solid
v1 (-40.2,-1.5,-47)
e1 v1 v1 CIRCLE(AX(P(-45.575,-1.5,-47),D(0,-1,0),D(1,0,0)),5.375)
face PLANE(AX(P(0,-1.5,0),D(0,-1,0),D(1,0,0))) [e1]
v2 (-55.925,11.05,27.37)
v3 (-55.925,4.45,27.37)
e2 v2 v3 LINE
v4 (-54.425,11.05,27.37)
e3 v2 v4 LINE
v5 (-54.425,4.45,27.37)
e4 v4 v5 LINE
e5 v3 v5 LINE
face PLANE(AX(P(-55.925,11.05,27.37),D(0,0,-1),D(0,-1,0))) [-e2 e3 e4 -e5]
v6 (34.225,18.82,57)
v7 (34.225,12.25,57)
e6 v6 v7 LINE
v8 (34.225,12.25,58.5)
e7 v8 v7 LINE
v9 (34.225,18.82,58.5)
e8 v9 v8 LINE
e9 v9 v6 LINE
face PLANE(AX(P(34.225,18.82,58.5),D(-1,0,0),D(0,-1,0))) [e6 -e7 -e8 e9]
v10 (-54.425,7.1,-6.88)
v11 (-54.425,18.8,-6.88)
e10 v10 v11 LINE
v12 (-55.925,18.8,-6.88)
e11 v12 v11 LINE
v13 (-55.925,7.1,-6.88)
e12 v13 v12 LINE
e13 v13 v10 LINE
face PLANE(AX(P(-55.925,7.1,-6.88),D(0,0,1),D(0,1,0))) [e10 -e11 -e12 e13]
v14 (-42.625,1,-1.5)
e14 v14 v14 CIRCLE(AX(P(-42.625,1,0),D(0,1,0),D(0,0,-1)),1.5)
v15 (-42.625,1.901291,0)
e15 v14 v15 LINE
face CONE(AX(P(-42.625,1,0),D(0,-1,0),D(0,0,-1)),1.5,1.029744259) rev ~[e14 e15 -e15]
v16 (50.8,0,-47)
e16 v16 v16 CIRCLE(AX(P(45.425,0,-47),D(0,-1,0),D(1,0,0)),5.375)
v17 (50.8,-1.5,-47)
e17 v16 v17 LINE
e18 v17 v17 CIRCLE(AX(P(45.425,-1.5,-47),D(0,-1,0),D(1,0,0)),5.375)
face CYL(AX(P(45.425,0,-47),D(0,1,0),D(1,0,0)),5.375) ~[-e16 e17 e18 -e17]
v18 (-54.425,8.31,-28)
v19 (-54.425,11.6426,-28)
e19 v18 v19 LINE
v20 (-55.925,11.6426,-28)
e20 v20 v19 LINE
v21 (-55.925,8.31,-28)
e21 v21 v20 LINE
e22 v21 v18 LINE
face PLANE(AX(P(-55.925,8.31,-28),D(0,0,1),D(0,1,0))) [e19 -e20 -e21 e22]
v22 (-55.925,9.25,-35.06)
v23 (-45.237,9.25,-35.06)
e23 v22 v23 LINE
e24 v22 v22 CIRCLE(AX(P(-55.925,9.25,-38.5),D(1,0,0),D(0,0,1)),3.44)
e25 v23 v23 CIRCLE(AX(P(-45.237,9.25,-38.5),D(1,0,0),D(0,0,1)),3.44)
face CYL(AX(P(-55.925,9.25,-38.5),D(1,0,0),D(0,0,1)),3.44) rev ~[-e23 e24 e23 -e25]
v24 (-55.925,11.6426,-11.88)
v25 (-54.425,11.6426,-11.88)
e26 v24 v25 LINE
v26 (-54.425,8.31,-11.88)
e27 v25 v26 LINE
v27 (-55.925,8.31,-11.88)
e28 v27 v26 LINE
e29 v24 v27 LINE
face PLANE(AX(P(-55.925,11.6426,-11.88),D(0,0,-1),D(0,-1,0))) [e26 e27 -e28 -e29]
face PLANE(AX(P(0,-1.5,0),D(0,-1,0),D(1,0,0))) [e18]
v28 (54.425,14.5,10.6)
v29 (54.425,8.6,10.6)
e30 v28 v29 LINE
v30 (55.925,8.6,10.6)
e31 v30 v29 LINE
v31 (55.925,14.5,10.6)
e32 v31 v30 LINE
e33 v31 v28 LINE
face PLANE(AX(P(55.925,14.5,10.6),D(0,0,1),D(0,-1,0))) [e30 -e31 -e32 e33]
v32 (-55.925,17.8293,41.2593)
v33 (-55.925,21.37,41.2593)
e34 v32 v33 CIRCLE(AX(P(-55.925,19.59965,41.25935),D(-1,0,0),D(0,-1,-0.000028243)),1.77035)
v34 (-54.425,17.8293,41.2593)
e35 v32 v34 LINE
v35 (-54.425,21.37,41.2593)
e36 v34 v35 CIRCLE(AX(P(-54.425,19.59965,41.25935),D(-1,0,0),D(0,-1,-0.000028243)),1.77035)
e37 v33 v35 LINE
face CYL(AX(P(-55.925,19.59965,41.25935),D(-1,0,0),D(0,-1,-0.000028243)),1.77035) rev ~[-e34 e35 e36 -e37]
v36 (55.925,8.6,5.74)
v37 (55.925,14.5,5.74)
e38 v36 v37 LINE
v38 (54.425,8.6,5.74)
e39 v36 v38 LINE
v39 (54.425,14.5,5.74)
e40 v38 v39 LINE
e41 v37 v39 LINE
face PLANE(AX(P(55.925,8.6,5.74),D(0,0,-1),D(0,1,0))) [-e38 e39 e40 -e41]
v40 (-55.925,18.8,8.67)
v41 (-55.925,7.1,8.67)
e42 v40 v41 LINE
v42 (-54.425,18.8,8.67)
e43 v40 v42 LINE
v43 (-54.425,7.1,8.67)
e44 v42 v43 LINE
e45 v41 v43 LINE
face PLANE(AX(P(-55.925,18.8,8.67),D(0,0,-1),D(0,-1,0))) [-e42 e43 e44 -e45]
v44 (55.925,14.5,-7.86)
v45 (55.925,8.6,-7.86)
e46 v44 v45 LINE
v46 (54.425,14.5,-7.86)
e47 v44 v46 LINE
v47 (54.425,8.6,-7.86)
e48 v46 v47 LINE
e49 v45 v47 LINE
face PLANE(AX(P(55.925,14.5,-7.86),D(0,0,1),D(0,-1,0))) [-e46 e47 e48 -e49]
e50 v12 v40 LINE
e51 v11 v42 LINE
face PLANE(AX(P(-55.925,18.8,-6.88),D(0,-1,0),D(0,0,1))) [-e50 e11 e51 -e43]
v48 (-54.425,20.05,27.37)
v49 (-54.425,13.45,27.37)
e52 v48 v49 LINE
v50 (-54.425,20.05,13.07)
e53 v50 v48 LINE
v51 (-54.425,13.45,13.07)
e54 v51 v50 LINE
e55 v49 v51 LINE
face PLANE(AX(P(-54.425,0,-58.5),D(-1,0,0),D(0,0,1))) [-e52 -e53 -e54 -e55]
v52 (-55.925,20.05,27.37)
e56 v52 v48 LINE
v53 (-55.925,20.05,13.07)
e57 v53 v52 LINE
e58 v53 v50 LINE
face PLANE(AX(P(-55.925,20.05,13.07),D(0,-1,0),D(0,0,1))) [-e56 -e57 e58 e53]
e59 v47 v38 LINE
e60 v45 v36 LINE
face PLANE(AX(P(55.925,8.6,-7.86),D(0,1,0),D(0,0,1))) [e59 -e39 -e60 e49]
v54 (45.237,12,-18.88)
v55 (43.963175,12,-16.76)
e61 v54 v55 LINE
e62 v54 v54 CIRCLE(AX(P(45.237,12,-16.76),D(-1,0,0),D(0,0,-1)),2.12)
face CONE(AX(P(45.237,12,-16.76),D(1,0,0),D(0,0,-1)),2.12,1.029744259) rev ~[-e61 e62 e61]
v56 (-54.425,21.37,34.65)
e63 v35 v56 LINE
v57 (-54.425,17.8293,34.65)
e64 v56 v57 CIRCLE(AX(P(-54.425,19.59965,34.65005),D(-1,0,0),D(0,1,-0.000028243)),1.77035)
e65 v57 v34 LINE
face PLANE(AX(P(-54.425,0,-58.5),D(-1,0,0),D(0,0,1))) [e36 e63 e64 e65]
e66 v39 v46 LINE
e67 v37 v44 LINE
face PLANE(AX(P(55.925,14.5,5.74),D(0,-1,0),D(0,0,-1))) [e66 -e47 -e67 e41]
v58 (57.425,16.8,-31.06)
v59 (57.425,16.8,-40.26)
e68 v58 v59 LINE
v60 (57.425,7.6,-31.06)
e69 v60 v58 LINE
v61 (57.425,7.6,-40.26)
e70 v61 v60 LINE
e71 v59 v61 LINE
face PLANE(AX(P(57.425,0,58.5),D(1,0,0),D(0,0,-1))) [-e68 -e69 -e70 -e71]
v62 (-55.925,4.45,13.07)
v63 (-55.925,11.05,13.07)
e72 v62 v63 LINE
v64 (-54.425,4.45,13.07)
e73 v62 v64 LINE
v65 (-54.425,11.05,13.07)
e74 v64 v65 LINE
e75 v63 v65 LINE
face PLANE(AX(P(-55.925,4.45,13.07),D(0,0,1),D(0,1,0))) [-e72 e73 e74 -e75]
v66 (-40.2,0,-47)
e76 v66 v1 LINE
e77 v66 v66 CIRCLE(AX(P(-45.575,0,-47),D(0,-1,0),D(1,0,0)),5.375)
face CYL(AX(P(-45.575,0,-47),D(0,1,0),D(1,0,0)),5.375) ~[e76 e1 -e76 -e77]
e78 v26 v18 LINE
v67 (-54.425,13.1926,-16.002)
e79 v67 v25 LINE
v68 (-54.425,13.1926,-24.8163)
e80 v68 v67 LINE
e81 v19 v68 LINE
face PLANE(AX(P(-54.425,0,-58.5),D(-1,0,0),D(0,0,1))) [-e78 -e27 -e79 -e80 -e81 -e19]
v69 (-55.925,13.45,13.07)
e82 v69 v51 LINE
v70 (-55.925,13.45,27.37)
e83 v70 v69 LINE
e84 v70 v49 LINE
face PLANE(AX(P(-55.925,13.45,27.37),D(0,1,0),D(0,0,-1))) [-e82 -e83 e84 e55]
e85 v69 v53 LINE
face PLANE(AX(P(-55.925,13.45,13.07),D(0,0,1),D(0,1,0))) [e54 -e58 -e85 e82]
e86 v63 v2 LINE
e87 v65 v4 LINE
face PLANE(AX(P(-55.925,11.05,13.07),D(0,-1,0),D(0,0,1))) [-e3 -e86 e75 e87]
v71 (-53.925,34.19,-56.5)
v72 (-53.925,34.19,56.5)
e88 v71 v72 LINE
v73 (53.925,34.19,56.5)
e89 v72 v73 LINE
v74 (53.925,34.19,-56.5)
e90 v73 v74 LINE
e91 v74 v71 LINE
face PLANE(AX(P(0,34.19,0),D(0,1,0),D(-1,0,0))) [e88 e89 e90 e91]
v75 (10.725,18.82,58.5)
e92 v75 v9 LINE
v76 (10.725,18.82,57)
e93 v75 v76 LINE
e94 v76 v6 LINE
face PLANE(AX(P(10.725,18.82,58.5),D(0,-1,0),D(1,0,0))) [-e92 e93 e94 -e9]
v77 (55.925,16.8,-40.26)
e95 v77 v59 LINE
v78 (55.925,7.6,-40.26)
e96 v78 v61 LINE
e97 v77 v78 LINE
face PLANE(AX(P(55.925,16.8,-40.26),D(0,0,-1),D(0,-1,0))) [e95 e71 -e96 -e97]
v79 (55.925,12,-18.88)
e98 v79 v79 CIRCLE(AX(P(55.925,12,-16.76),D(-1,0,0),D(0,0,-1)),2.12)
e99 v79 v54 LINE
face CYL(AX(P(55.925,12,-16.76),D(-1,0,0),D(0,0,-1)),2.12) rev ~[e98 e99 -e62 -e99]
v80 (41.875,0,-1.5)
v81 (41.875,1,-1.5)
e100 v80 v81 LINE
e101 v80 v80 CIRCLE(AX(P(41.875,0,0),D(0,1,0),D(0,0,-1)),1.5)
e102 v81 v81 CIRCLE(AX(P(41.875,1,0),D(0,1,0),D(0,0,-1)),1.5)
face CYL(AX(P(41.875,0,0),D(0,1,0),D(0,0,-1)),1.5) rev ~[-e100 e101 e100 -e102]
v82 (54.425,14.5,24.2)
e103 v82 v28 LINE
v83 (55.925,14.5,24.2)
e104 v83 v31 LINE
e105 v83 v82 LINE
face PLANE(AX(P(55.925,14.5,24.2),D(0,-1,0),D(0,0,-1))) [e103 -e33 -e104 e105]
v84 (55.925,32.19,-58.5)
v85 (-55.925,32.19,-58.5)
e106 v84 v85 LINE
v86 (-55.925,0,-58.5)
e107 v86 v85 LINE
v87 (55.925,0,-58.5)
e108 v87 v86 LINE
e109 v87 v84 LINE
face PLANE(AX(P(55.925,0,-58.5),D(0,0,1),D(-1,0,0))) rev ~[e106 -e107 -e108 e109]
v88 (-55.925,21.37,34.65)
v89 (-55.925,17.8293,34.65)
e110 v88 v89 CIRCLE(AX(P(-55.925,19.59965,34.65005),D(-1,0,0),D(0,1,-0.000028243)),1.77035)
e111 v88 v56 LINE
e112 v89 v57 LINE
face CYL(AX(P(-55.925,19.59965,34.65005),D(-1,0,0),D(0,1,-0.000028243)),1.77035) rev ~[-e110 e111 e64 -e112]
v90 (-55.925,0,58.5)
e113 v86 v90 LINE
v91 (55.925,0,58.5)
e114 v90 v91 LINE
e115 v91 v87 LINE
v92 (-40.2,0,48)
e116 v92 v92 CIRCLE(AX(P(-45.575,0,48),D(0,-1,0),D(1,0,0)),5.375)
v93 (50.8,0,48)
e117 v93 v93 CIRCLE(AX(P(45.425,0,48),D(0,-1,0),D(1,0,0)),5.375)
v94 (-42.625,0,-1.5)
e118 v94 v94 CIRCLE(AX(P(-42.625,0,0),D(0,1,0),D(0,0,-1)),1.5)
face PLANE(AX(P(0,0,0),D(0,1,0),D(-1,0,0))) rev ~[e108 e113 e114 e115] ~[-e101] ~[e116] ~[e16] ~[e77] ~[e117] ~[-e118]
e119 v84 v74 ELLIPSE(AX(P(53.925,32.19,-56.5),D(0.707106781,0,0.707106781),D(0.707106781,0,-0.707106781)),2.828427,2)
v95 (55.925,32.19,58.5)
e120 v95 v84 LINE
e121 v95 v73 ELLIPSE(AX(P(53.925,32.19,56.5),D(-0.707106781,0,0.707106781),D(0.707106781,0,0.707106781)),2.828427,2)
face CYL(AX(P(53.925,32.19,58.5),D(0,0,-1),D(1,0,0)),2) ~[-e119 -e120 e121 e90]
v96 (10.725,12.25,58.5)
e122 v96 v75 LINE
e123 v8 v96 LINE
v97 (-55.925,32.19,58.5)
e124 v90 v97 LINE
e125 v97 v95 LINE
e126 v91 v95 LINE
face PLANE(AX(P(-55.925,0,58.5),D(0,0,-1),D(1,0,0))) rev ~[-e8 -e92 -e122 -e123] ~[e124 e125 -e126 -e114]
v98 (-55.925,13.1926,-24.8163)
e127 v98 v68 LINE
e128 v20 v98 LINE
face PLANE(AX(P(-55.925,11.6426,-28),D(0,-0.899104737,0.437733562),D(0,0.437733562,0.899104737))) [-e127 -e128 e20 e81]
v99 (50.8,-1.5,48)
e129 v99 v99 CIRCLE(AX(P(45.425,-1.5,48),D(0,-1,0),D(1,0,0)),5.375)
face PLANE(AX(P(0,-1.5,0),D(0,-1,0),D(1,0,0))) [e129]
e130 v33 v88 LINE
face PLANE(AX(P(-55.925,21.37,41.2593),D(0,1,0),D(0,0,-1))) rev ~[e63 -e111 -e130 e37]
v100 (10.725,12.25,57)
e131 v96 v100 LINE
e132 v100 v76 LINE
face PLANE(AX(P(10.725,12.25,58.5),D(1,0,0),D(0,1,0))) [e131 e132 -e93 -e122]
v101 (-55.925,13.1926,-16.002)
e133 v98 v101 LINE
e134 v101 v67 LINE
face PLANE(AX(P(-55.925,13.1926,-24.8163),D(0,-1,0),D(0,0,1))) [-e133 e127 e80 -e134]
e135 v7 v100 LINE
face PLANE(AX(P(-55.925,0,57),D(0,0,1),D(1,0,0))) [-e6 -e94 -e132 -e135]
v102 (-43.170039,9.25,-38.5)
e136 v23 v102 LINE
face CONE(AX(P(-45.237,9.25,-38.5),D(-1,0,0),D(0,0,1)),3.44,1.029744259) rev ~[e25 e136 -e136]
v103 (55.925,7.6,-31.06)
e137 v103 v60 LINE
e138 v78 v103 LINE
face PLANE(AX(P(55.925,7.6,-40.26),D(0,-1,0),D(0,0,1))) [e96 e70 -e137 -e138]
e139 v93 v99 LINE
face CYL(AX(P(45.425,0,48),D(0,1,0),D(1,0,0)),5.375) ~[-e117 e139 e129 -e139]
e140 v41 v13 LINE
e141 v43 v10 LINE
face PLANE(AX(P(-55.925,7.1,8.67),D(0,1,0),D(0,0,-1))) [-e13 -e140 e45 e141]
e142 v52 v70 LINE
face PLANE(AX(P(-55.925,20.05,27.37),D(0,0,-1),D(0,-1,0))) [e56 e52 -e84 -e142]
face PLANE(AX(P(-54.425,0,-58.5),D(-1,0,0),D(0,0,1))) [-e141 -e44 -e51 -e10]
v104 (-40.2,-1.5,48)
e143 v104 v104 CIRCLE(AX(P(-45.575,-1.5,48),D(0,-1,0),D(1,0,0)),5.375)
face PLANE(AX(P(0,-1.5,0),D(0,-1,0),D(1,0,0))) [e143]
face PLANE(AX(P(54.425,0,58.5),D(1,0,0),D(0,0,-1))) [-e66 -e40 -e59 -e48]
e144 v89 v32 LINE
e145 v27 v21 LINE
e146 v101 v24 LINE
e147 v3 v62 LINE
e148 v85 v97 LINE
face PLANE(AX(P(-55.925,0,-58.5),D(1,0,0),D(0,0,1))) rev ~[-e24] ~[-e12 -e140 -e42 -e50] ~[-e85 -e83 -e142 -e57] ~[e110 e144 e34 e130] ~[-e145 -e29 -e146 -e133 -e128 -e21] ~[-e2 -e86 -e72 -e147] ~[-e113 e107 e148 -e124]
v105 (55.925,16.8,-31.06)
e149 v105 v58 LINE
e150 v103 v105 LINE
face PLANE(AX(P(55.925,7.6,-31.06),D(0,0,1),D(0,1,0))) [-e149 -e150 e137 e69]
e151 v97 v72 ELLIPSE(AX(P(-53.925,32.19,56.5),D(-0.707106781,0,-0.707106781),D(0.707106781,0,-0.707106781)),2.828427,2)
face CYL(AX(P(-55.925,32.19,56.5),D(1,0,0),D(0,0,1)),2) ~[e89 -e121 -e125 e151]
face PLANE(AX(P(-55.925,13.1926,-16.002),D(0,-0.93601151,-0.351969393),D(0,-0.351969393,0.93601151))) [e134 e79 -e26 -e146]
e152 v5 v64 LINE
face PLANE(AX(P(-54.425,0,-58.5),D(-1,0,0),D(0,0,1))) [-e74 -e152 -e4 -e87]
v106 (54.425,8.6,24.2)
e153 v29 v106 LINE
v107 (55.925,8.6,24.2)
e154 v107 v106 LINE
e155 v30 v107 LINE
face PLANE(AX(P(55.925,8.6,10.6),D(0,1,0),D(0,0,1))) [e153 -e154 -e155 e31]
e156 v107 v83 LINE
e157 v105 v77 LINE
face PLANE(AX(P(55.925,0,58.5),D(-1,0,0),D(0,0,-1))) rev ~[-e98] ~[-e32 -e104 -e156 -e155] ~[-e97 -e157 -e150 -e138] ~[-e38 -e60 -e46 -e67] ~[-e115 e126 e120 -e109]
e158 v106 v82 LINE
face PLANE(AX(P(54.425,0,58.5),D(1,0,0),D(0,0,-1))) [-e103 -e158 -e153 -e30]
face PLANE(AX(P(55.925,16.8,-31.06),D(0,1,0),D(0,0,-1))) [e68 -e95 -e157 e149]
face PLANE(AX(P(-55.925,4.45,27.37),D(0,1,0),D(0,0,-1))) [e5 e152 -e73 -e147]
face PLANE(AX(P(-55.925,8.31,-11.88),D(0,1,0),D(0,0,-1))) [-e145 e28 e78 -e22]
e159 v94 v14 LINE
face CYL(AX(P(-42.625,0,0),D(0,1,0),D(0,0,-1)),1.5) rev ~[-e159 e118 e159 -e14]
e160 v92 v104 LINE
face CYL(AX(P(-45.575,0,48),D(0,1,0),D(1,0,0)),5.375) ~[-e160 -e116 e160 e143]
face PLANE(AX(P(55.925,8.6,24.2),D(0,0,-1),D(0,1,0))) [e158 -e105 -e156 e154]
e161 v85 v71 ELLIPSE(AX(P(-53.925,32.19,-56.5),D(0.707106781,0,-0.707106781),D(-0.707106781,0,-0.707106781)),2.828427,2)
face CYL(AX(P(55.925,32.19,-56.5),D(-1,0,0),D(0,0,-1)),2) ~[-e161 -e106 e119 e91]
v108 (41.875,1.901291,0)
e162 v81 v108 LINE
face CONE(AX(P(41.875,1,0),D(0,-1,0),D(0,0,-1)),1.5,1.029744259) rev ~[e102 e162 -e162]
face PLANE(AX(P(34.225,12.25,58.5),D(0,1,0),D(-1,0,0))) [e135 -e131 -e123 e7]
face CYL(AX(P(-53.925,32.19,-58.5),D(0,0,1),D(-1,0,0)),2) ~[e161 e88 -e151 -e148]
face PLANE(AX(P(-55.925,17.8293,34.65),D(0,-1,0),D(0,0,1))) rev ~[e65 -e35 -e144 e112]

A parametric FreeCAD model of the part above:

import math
import FreeCAD as App
import Part
import Sketcher

V = App.Vector
Q = App.Units.Quantity


def edges_at(feature, points):
    """Names of the edges that pass closest to the given points."""
    edges = feature.Shape.Edges
    near = lambda p: min(range(len(edges)), key=lambda i: edges[i].distToShape(Part.Vertex(*p))[0])
    return sorted({f"Edge{near(p) + 1}" for p in points})

doc = App.newDocument("Part")
body = doc.addObject("PartDesign::Body", "Body")

# Sketch on XZ plane
sketch1 = body.newObject("Sketcher::SketchObject", "Sketch")
sketch1.AttachmentSupport = (doc.getObject("XZ_Plane"), [""])
sketch1.MapMode = "FlatFace"
sketch1.addGeometry(Part.LineSegment(V(-56, -58, 0), V(-56, 58, 0)), False)
sketch1.addGeometry(Part.LineSegment(V(-56, 58, 0), V(56, 58, 0)), False)
sketch1.addGeometry(Part.LineSegment(V(56, 58, 0), V(56, -58, 0)), False)
sketch1.addGeometry(Part.LineSegment(V(56, -58, 0), V(-56, -58, 0)), False)
sketch1.addConstraint(Sketcher.Constraint("Coincident", 0, 2, 1, 1))
sketch1.addConstraint(Sketcher.Constraint("Coincident", 1, 2, 2, 1))
sketch1.addConstraint(Sketcher.Constraint("Coincident", 2, 2, 3, 1))
sketch1.addConstraint(Sketcher.Constraint("Coincident", 3, 2, 0, 1))
sketch1.addConstraint(Sketcher.Constraint("Vertical", 0))
sketch1.addConstraint(Sketcher.Constraint("Horizontal", 1))
sketch1.addConstraint(Sketcher.Constraint("Vertical", 2))
sketch1.addConstraint(Sketcher.Constraint("Horizontal", 3))
sketch1.addConstraint(Sketcher.Constraint("Symmetric", 0, 2, 2, 2, -1, 1))
sketch1.addConstraint(Sketcher.Constraint("DistanceY", 0, 1, 0, 2, 117.0))
sketch1.addConstraint(Sketcher.Constraint("DistanceX", 1, 1, 1, 2, 111.85))
pad1 = body.newObject("PartDesign::Pad", "Pad")
pad1.Profile = sketch1
pad1.Length = 34.19
pad1.Reversed = True
doc.recompute()

fillet = body.newObject("PartDesign::Fillet", "Fillet")
fillet.Base = (pad1, edges_at(pad1, [
    (0, 34.19, 58.5),
    (55.925, 34.19, 0),
    (0, 34.19, -58.5),
    (-55.925, 34.19, 0),
]))
fillet.Radius = 2

# Sketch on XZ plane
sketch2 = body.newObject("Sketcher::SketchObject", "Sketch001")
sketch2.AttachmentSupport = (doc.getObject("XZ_Plane"), [""])
sketch2.MapMode = "FlatFace"
sketch2.addGeometry(Part.Circle(V(45, 48, 0), V(0, 0, 1), 5), False)
sketch2.addGeometry(Part.Circle(V(-46, 48, 0), V(0, 0, 1), 5), False)
sketch2.addGeometry(Part.Circle(V(45, -47, 0), V(0, 0, 1), 5), False)
sketch2.addGeometry(Part.Circle(V(-46, -47, 0), V(0, 0, 1), 5), False)
sketch2.addConstraint(Sketcher.Constraint("Equal", 0, 1))
sketch2.addConstraint(Sketcher.Constraint("Equal", 1, 2))
sketch2.addConstraint(Sketcher.Constraint("Equal", 2, 3))
sketch2.addConstraint(Sketcher.Constraint("Horizontal", 0, 3, 1, 3))
sketch2.addConstraint(Sketcher.Constraint("Horizontal", 2, 3, 3, 3))
sketch2.addConstraint(Sketcher.Constraint("Vertical", 0, 3, 2, 3))
sketch2.addConstraint(Sketcher.Constraint("Vertical", 1, 3, 3, 3))
sketch2.addConstraint(Sketcher.Constraint("Diameter", 0, 10.75))
sketch2.addConstraint(Sketcher.Constraint("DistanceX", 1, 3, 0, 3, 91.0))
sketch2.addConstraint(Sketcher.Constraint("DistanceY", 2, 3, 0, 3, 95.0))
sketch2.addConstraint(Sketcher.Constraint("DistanceY", -1, 1, 0, 3, 48.0))
sketch2.addConstraint(Sketcher.Constraint("DistanceX", -1, 1, 0, 3, 45.425))
pad2 = body.newObject("PartDesign::Pad", "Pad001")
pad2.Profile = sketch2
pad2.Length = 1.5

# Sketch on XZ plane
sketch3 = body.newObject("Sketcher::SketchObject", "Sketch002")
sketch3.AttachmentSupport = (doc.getObject("XZ_Plane"), [""])
sketch3.MapMode = "FlatFace"
sketch3.addGeometry(Part.Circle(V(-42.6, 0, 0), V(0, 0, 1), 1.5), False)
sketch3.addConstraint(Sketcher.Constraint("PointOnObject", 0, 3, -1))
sketch3.addConstraint(Sketcher.Constraint("Diameter", 0, 3.0))
sketch3.addConstraint(Sketcher.Constraint("DistanceX", 0, 3, -1, 1, 42.625))
doc.recompute()
hole = body.newObject("PartDesign::Hole", "Hole")
hole.Profile = sketch3
hole.ThreadType = "None"
hole.Diameter = 3
hole.DepthType = "Dimension"
hole.Depth = 1
hole.DrillPoint = "Angled"
hole.DrillPointAngle = 118
doc.recompute()

linearpattern = body.newObject("PartDesign::LinearPattern", "LinearPattern")
linearpattern.Originals = [hole]
linearpattern.Direction = (doc.getObject("X_Axis"), [""])
linearpattern.Mode = "offset"
linearpattern.Offset = 84.5
linearpattern.Occurrences = 2
body.Tip = linearpattern

# Sketch on YZ plane
sketch4 = body.newObject("Sketcher::SketchObject", "Sketch003")
sketch4.AttachmentSupport = (doc.getObject("YZ_Plane"), [""])
sketch4.MapMode = "FlatFace"
sketch4.AttachmentOffset = App.Placement(V(0, 0, 55.925), App.Rotation())
sketch4.addGeometry(Part.LineSegment(V(14, 11, 0), V(14, 24, 0)), False)
sketch4.addGeometry(Part.LineSegment(V(14, 24, 0), V(9, 24, 0)), False)
sketch4.addGeometry(Part.LineSegment(V(9, 24, 0), V(9, 11, 0)), False)
sketch4.addGeometry(Part.LineSegment(V(9, 11, 0), V(14, 11, 0)), False)
sketch4.addGeometry(Part.LineSegment(V(14, -8, 0), V(14, 6, 0)), False)
sketch4.addGeometry(Part.LineSegment(V(14, 6, 0), V(9, 6, 0)), False)
sketch4.addGeometry(Part.LineSegment(V(9, 6, 0), V(9, -8, 0)), False)
sketch4.addGeometry(Part.LineSegment(V(9, -8, 0), V(14, -8, 0)), False)
sketch4.addConstraint(Sketcher.Constraint("Coincident", 0, 2, 1, 1))
sketch4.addConstraint(Sketcher.Constraint("Coincident", 1, 2, 2, 1))
sketch4.addConstraint(Sketcher.Constraint("Coincident", 2, 2, 3, 1))
sketch4.addConstraint(Sketcher.Constraint("Coincident", 3, 2, 0, 1))
sketch4.addConstraint(Sketcher.Constraint("Coincident", 4, 2, 5, 1))
sketch4.addConstraint(Sketcher.Constraint("Coincident", 5, 2, 6, 1))
sketch4.addConstraint(Sketcher.Constraint("Coincident", 6, 2, 7, 1))
sketch4.addConstraint(Sketcher.Constraint("Coincident", 7, 2, 4, 1))
sketch4.addConstraint(Sketcher.Constraint("Vertical", 0))
sketch4.addConstraint(Sketcher.Constraint("Horizontal", 1))
sketch4.addConstraint(Sketcher.Constraint("Vertical", 2))
sketch4.addConstraint(Sketcher.Constraint("Horizontal", 3))
sketch4.addConstraint(Sketcher.Constraint("Vertical", 4))
sketch4.addConstraint(Sketcher.Constraint("Horizontal", 5))
sketch4.addConstraint(Sketcher.Constraint("Vertical", 6))
sketch4.addConstraint(Sketcher.Constraint("Horizontal", 7))
sketch4.addConstraint(Sketcher.Constraint("Vertical", 3, 2, 4, 2))
sketch4.addConstraint(Sketcher.Constraint("Vertical", 2, 2, 5, 2))
sketch4.addConstraint(Sketcher.Constraint("Equal", 2, 4))
sketch4.addConstraint(Sketcher.Constraint("DistanceX", 1, 2, 1, 1, 5.9))
sketch4.addConstraint(Sketcher.Constraint("DistanceY", 0, 1, 0, 2, 13.6))
sketch4.addConstraint(Sketcher.Constraint("DistanceX", -1, 1, 1, 2, 8.6))
sketch4.addConstraint(Sketcher.Constraint("DistanceY", 4, 2, 3, 2, 4.86))
sketch4.addConstraint(Sketcher.Constraint("DistanceY", -1, 1, 0, 2, 24.2))
pocket1 = body.newObject("PartDesign::Pocket", "Pocket")
pocket1.Profile = sketch4
pocket1.Length = 1.5

# Sketch on YZ plane
sketch5 = body.newObject("Sketcher::SketchObject", "Sketch004")
sketch5.AttachmentSupport = (doc.getObject("YZ_Plane"), [""])
sketch5.MapMode = "FlatFace"
sketch5.AttachmentOffset = App.Placement(V(0, 0, 55.925), App.Rotation())
sketch5.addGeometry(Part.Circle(V(12, -16.8, 0), V(0, 0, 1), 2.1), False)
sketch5.addConstraint(Sketcher.Constraint("Diameter", 0, 4.24))
sketch5.addConstraint(Sketcher.Constraint("DistanceX", -1, 1, 0, 3, 12.0))
sketch5.addConstraint(Sketcher.Constraint("DistanceY", 0, 3, -1, 1, 16.76))
doc.recompute()
hole2 = body.newObject("PartDesign::Hole", "Hole001")
hole2.Profile = sketch5
hole2.ThreadType = "None"
hole2.Diameter = 4.24
hole2.DepthType = "Dimension"
hole2.Depth = 10.688
hole2.DrillPoint = "Angled"
hole2.DrillPointAngle = 118

# Sketch on YZ plane
sketch6 = body.newObject("Sketcher::SketchObject", "Sketch005")
sketch6.AttachmentSupport = (doc.getObject("YZ_Plane"), [""])
sketch6.MapMode = "FlatFace"
sketch6.AttachmentOffset = App.Placement(V(0, 0, -55.925), App.Rotation())
sketch6.addGeometry(Part.Circle(V(9.2, -38.5, 0), V(0, 0, 1), 3.4), False)
sketch6.addConstraint(Sketcher.Constraint("Diameter", 0, 6.88))
sketch6.addConstraint(Sketcher.Constraint("DistanceY", 0, 3, -1, 1, 38.5))
sketch6.addConstraint(Sketcher.Constraint("DistanceX", -1, 1, 0, 3, 9.25))
doc.recompute()
hole3 = body.newObject("PartDesign::Hole", "Hole002")
hole3.Profile = sketch6
hole3.ThreadType = "None"
hole3.Diameter = 6.88
hole3.DepthType = "Dimension"
hole3.Depth = 10.688
hole3.DrillPoint = "Angled"
hole3.DrillPointAngle = 118
hole3.Reversed = True

# Sketch on YZ plane
sketch7 = body.newObject("Sketcher::SketchObject", "Sketch006")
sketch7.AttachmentSupport = (doc.getObject("YZ_Plane"), [""])
sketch7.MapMode = "FlatFace"
sketch7.AttachmentOffset = App.Placement(V(0, 0, -55.925), App.Rotation())
sketch7.addGeometry(Part.LineSegment(V(13.2, -16, 0), V(13.2, -24.8, 0)), False)
sketch7.addGeometry(Part.LineSegment(V(13.2, -24.8, 0), V(11.6, -28, 0)), False)
sketch7.addGeometry(Part.LineSegment(V(11.6, -28, 0), V(8.3, -28, 0)), False)
sketch7.addGeometry(Part.LineSegment(V(8.3, -28, 0), V(8.3, -11.9, 0)), False)
sketch7.addGeometry(Part.LineSegment(V(8.3, -11.9, 0), V(11.6, -11.9, 0)), False)
sketch7.addGeometry(Part.LineSegment(V(11.6, -11.9, 0), V(13.2, -16, 0)), False)
sketch7.addConstraint(Sketcher.Constraint("Coincident", 0, 2, 1, 1))
sketch7.addConstraint(Sketcher.Constraint("Coincident", 1, 2, 2, 1))
sketch7.addConstraint(Sketcher.Constraint("Coincident", 2, 2, 3, 1))
sketch7.addConstraint(Sketcher.Constraint("Coincident", 3, 2, 4, 1))
sketch7.addConstraint(Sketcher.Constraint("Coincident", 4, 2, 5, 1))
sketch7.addConstraint(Sketcher.Constraint("Coincident", 5, 2, 0, 1))
sketch7.addConstraint(Sketcher.Constraint("Vertical", 0))
sketch7.addConstraint(Sketcher.Constraint("Horizontal", 2))
sketch7.addConstraint(Sketcher.Constraint("Vertical", 3))
sketch7.addConstraint(Sketcher.Constraint("Horizontal", 4))
sketch7.addConstraint(Sketcher.Constraint("Vertical", 1, 2, 4, 2))
sketch7.addConstraint(Sketcher.Constraint("DistanceY", 3, 1, 3, 2, 16.12))
sketch7.addConstraint(Sketcher.Constraint("DistanceX", -1, 1, 2, 2, 8.31))
sketch7.addConstraint(Sketcher.Constraint("DistanceX", 1, 2, 0, 2, 1.55))
sketch7.addConstraint(Sketcher.Constraint("DistanceY", 0, 2, 0, 1, 8.8143))
sketch7.addConstraint(Sketcher.Constraint("DistanceY", 1, 2, -1, 1, 28.0))
sketch7.addConstraint(Sketcher.Constraint("Angle", 1, Q("-115.9594 deg")))
sketch7.addConstraint(Sketcher.Constraint("DistanceX", 2, 2, 2, 1, 3.3326))
pocket2 = body.newObject("PartDesign::Pocket", "Pocket001")
pocket2.Profile = sketch7
pocket2.Length = 1.5
pocket2.Reversed = True

# Sketch on YZ plane
sketch8 = body.newObject("Sketcher::SketchObject", "Sketch007")
sketch8.AttachmentSupport = (doc.getObject("YZ_Plane"), [""])
sketch8.MapMode = "FlatFace"
sketch8.AttachmentOffset = App.Placement(V(0, 0, -55.925), App.Rotation())
sketch8.addGeometry(Part.LineSegment(V(19, 9, 0), V(19, -7, 0)), False)
sketch8.addGeometry(Part.LineSegment(V(19, -7, 0), V(7, -7, 0)), False)
sketch8.addGeometry(Part.LineSegment(V(7, -7, 0), V(7, 9, 0)), False)
sketch8.addGeometry(Part.LineSegment(V(7, 9, 0), V(19, 9, 0)), False)
sketch8.addConstraint(Sketcher.Constraint("Coincident", 0, 2, 1, 1))
sketch8.addConstraint(Sketcher.Constraint("Coincident", 1, 2, 2, 1))
sketch8.addConstraint(Sketcher.Constraint("Coincident", 2, 2, 3, 1))
sketch8.addConstraint(Sketcher.Constraint("Coincident", 3, 2, 0, 1))
sketch8.addConstraint(Sketcher.Constraint("Vertical", 0))
sketch8.addConstraint(Sketcher.Constraint("Horizontal", 1))
sketch8.addConstraint(Sketcher.Constraint("Vertical", 2))
sketch8.addConstraint(Sketcher.Constraint("Horizontal", 3))
sketch8.addConstraint(Sketcher.Constraint("DistanceX", 1, 2, 1, 1, 11.7))
sketch8.addConstraint(Sketcher.Constraint("DistanceY", 0, 2, 0, 1, 15.55))
sketch8.addConstraint(Sketcher.Constraint("DistanceX", -1, 1, 1, 2, 7.1))
sketch8.addConstraint(Sketcher.Constraint("DistanceY", 0, 2, -1, 1, 6.88))
pocket3 = body.newObject("PartDesign::Pocket", "Pocket002")
pocket3.Profile = sketch8
pocket3.Length = 1.5
pocket3.Reversed = True

# Sketch on YZ plane
sketch9 = body.newObject("Sketcher::SketchObject", "Sketch008")
sketch9.AttachmentSupport = (doc.getObject("YZ_Plane"), [""])
sketch9.MapMode = "FlatFace"
sketch9.AttachmentOffset = App.Placement(V(0, 0, -55.925), App.Rotation())
sketch9.addGeometry(Part.LineSegment(V(20, 27, 0), V(20, 13, 0)), False)
sketch9.addGeometry(Part.LineSegment(V(20, 13, 0), V(13, 13, 0)), False)
sketch9.addGeometry(Part.LineSegment(V(13, 13, 0), V(13, 27, 0)), False)
sketch9.addGeometry(Part.LineSegment(V(13, 27, 0), V(20, 27, 0)), False)
sketch9.addGeometry(Part.LineSegment(V(11, 27, 0), V(11, 13, 0)), False)
sketch9.addGeometry(Part.LineSegment(V(11, 13, 0), V(4, 13, 0)), False)
sketch9.addGeometry(Part.LineSegment(V(4, 13, 0), V(4, 27, 0)), False)
sketch9.addGeometry(Part.LineSegment(V(4, 27, 0), V(11, 27, 0)), False)
sketch9.addConstraint(Sketcher.Constraint("Coincident", 0, 2, 1, 1))
sketch9.addConstraint(Sketcher.Constraint("Coincident", 1, 2, 2, 1))
sketch9.addConstraint(Sketcher.Constraint("Coincident", 2, 2, 3, 1))
sketch9.addConstraint(Sketcher.Constraint("Coincident", 3, 2, 0, 1))
sketch9.addConstraint(Sketcher.Constraint("Coincident", 4, 2, 5, 1))
sketch9.addConstraint(Sketcher.Constraint("Coincident", 5, 2, 6, 1))
sketch9.addConstraint(Sketcher.Constraint("Coincident", 6, 2, 7, 1))
sketch9.addConstraint(Sketcher.Constraint("Coincident", 7, 2, 4, 1))
sketch9.addConstraint(Sketcher.Constraint("Vertical", 0))
sketch9.addConstraint(Sketcher.Constraint("Horizontal", 1))
sketch9.addConstraint(Sketcher.Constraint("Vertical", 2))
sketch9.addConstraint(Sketcher.Constraint("Horizontal", 3))
sketch9.addConstraint(Sketcher.Constraint("Vertical", 4))
sketch9.addConstraint(Sketcher.Constraint("Horizontal", 5))
sketch9.addConstraint(Sketcher.Constraint("Vertical", 6))
sketch9.addConstraint(Sketcher.Constraint("Horizontal", 7))
sketch9.addConstraint(Sketcher.Constraint("Horizontal", 1, 2, 4, 2))
sketch9.addConstraint(Sketcher.Constraint("Horizontal", 3, 2, 6, 2))
sketch9.addConstraint(Sketcher.Constraint("Equal", 3, 5))
sketch9.addConstraint(Sketcher.Constraint("DistanceX", 1, 2, 1, 1, 6.6))
sketch9.addConstraint(Sketcher.Constraint("DistanceY", 0, 2, 0, 1, 14.3))
sketch9.addConstraint(Sketcher.Constraint("DistanceX", 4, 2, 1, 2, 2.4))
sketch9.addConstraint(Sketcher.Constraint("DistanceX", -1, 1, 0, 2, 20.05))
sketch9.addConstraint(Sketcher.Constraint("DistanceY", -1, 1, 0, 2, 13.07))
pocket4 = body.newObject("PartDesign::Pocket", "Pocket003")
pocket4.Profile = sketch9
pocket4.Length = 1.5
pocket4.Reversed = True

# Sketch on YZ plane
sketch10 = body.newObject("Sketcher::SketchObject", "Sketch009")
sketch10.AttachmentSupport = (doc.getObject("YZ_Plane"), [""])
sketch10.MapMode = "FlatFace"
sketch10.AttachmentOffset = App.Placement(V(0, 0, -55.925), App.Rotation())
sketch10.addGeometry(Part.ArcOfCircle(Part.Circle(V(19.6, 34.6, 0), V(0, 0, 1), 1.8), math.radians(180), math.radians(360)), False)
sketch10.addGeometry(Part.LineSegment(V(17.8, 34.6, 0), V(17.8, 41.3, 0)), False)
sketch10.addGeometry(Part.ArcOfCircle(Part.Circle(V(19.6, 41.3, 0), V(0, 0, 1), 1.8), math.radians(0), math.radians(180)), False)
sketch10.addGeometry(Part.LineSegment(V(21.4, 41.3, 0), V(21.4, 34.6, 0)), False)
sketch10.addConstraint(Sketcher.Constraint("Tangent", 0, 1, 1, 1))
sketch10.addConstraint(Sketcher.Constraint("Tangent", 1, 2, 2, 2))
sketch10.addConstraint(Sketcher.Constraint("Tangent", 2, 1, 3, 1))
sketch10.addConstraint(Sketcher.Constraint("Tangent", 3, 2, 0, 2))
sketch10.addConstraint(Sketcher.Constraint("Vertical", 1))
sketch10.addConstraint(Sketcher.Constraint("Vertical", 3))
sketch10.addConstraint(Sketcher.Constraint("Radius", 0, 1.7703))
sketch10.addConstraint(Sketcher.Constraint("DistanceY", -1, 1, 0, 3, 34.65))
sketch10.addConstraint(Sketcher.Constraint("DistanceX", -1, 1, 2, 1, 21.37))
sketch10.addConstraint(Sketcher.Constraint("DistanceY", 1, 1, 1, 2, 6.6093))
pocket5 = body.newObject("PartDesign::Pocket", "Pocket004")
pocket5.Profile = sketch10
pocket5.Length = 1.5
pocket5.Reversed = True

# Sketch on YZ plane
sketch11 = body.newObject("Sketcher::SketchObject", "Sketch010")
sketch11.AttachmentSupport = (doc.getObject("YZ_Plane"), [""])
sketch11.MapMode = "FlatFace"
sketch11.AttachmentOffset = App.Placement(V(0, 0, 55.925), App.Rotation())
sketch11.addGeometry(Part.LineSegment(V(17, -40, 0), V(17, -31, 0)), False)
sketch11.addGeometry(Part.LineSegment(V(17, -31, 0), V(8, -31, 0)), False)
sketch11.addGeometry(Part.LineSegment(V(8, -31, 0), V(8, -40, 0)), False)
sketch11.addGeometry(Part.LineSegment(V(8, -40, 0), V(17, -40, 0)), False)
sketch11.addConstraint(Sketcher.Constraint("Coincident", 0, 2, 1, 1))
sketch11.addConstraint(Sketcher.Constraint("Coincident", 1, 2, 2, 1))
sketch11.addConstraint(Sketcher.Constraint("Coincident", 2, 2, 3, 1))
sketch11.addConstraint(Sketcher.Constraint("Coincident", 3, 2, 0, 1))
sketch11.addConstraint(Sketcher.Constraint("Vertical", 0))
sketch11.addConstraint(Sketcher.Constraint("Horizontal", 1))
sketch11.addConstraint(Sketcher.Constraint("Vertical", 2))
sketch11.addConstraint(Sketcher.Constraint("Horizontal", 3))
sketch11.addConstraint(Sketcher.Constraint("Equal", 3, 0))
sketch11.addConstraint(Sketcher.Constraint("DistanceX", 1, 2, 1, 1, 9.2))
sketch11.addConstraint(Sketcher.Constraint("DistanceX", -1, 1, 1, 2, 7.6))
sketch11.addConstraint(Sketcher.Constraint("DistanceY", 0, 2, -1, 1, 31.06))
pad3 = body.newObject("PartDesign::Pad", "Pad002")
pad3.Profile = sketch11
pad3.Length = 1.5

# Sketch on XY plane
sketch12 = body.newObject("Sketcher::SketchObject", "Sketch011")
sketch12.AttachmentSupport = (doc.getObject("XY_Plane"), [""])
sketch12.MapMode = "FlatFace"
sketch12.AttachmentOffset = App.Placement(V(0, 0, 58.5), App.Rotation())
sketch12.addGeometry(Part.LineSegment(V(34, 19, 0), V(11, 19, 0)), False)
sketch12.addGeometry(Part.LineSegment(V(11, 19, 0), V(11, 12, 0)), False)
sketch12.addGeometry(Part.LineSegment(V(11, 12, 0), V(34, 12, 0)), False)
sketch12.addGeometry(Part.LineSegment(V(34, 12, 0), V(34, 19, 0)), False)
sketch12.addConstraint(Sketcher.Constraint("Coincident", 0, 2, 1, 1))
sketch12.addConstraint(Sketcher.Constraint("Coincident", 1, 2, 2, 1))
sketch12.addConstraint(Sketcher.Constraint("Coincident", 2, 2, 3, 1))
sketch12.addConstraint(Sketcher.Constraint("Coincident", 3, 2, 0, 1))
sketch12.addConstraint(Sketcher.Constraint("Horizontal", 0))
sketch12.addConstraint(Sketcher.Constraint("Vertical", 1))
sketch12.addConstraint(Sketcher.Constraint("Horizontal", 2))
sketch12.addConstraint(Sketcher.Constraint("Vertical", 3))
sketch12.addConstraint(Sketcher.Constraint("DistanceX", 0, 2, 0, 1, 23.5))
sketch12.addConstraint(Sketcher.Constraint("DistanceY", 1, 2, 1, 1, 6.57))
sketch12.addConstraint(Sketcher.Constraint("DistanceY", -1, 1, 1, 2, 12.25))
sketch12.addConstraint(Sketcher.Constraint("DistanceX", -1, 1, 0, 2, 10.725))
pocket6 = body.newObject("PartDesign::Pocket", "Pocket005")
pocket6.Profile = sketch12
pocket6.Length = 1.5

doc.recompute()
